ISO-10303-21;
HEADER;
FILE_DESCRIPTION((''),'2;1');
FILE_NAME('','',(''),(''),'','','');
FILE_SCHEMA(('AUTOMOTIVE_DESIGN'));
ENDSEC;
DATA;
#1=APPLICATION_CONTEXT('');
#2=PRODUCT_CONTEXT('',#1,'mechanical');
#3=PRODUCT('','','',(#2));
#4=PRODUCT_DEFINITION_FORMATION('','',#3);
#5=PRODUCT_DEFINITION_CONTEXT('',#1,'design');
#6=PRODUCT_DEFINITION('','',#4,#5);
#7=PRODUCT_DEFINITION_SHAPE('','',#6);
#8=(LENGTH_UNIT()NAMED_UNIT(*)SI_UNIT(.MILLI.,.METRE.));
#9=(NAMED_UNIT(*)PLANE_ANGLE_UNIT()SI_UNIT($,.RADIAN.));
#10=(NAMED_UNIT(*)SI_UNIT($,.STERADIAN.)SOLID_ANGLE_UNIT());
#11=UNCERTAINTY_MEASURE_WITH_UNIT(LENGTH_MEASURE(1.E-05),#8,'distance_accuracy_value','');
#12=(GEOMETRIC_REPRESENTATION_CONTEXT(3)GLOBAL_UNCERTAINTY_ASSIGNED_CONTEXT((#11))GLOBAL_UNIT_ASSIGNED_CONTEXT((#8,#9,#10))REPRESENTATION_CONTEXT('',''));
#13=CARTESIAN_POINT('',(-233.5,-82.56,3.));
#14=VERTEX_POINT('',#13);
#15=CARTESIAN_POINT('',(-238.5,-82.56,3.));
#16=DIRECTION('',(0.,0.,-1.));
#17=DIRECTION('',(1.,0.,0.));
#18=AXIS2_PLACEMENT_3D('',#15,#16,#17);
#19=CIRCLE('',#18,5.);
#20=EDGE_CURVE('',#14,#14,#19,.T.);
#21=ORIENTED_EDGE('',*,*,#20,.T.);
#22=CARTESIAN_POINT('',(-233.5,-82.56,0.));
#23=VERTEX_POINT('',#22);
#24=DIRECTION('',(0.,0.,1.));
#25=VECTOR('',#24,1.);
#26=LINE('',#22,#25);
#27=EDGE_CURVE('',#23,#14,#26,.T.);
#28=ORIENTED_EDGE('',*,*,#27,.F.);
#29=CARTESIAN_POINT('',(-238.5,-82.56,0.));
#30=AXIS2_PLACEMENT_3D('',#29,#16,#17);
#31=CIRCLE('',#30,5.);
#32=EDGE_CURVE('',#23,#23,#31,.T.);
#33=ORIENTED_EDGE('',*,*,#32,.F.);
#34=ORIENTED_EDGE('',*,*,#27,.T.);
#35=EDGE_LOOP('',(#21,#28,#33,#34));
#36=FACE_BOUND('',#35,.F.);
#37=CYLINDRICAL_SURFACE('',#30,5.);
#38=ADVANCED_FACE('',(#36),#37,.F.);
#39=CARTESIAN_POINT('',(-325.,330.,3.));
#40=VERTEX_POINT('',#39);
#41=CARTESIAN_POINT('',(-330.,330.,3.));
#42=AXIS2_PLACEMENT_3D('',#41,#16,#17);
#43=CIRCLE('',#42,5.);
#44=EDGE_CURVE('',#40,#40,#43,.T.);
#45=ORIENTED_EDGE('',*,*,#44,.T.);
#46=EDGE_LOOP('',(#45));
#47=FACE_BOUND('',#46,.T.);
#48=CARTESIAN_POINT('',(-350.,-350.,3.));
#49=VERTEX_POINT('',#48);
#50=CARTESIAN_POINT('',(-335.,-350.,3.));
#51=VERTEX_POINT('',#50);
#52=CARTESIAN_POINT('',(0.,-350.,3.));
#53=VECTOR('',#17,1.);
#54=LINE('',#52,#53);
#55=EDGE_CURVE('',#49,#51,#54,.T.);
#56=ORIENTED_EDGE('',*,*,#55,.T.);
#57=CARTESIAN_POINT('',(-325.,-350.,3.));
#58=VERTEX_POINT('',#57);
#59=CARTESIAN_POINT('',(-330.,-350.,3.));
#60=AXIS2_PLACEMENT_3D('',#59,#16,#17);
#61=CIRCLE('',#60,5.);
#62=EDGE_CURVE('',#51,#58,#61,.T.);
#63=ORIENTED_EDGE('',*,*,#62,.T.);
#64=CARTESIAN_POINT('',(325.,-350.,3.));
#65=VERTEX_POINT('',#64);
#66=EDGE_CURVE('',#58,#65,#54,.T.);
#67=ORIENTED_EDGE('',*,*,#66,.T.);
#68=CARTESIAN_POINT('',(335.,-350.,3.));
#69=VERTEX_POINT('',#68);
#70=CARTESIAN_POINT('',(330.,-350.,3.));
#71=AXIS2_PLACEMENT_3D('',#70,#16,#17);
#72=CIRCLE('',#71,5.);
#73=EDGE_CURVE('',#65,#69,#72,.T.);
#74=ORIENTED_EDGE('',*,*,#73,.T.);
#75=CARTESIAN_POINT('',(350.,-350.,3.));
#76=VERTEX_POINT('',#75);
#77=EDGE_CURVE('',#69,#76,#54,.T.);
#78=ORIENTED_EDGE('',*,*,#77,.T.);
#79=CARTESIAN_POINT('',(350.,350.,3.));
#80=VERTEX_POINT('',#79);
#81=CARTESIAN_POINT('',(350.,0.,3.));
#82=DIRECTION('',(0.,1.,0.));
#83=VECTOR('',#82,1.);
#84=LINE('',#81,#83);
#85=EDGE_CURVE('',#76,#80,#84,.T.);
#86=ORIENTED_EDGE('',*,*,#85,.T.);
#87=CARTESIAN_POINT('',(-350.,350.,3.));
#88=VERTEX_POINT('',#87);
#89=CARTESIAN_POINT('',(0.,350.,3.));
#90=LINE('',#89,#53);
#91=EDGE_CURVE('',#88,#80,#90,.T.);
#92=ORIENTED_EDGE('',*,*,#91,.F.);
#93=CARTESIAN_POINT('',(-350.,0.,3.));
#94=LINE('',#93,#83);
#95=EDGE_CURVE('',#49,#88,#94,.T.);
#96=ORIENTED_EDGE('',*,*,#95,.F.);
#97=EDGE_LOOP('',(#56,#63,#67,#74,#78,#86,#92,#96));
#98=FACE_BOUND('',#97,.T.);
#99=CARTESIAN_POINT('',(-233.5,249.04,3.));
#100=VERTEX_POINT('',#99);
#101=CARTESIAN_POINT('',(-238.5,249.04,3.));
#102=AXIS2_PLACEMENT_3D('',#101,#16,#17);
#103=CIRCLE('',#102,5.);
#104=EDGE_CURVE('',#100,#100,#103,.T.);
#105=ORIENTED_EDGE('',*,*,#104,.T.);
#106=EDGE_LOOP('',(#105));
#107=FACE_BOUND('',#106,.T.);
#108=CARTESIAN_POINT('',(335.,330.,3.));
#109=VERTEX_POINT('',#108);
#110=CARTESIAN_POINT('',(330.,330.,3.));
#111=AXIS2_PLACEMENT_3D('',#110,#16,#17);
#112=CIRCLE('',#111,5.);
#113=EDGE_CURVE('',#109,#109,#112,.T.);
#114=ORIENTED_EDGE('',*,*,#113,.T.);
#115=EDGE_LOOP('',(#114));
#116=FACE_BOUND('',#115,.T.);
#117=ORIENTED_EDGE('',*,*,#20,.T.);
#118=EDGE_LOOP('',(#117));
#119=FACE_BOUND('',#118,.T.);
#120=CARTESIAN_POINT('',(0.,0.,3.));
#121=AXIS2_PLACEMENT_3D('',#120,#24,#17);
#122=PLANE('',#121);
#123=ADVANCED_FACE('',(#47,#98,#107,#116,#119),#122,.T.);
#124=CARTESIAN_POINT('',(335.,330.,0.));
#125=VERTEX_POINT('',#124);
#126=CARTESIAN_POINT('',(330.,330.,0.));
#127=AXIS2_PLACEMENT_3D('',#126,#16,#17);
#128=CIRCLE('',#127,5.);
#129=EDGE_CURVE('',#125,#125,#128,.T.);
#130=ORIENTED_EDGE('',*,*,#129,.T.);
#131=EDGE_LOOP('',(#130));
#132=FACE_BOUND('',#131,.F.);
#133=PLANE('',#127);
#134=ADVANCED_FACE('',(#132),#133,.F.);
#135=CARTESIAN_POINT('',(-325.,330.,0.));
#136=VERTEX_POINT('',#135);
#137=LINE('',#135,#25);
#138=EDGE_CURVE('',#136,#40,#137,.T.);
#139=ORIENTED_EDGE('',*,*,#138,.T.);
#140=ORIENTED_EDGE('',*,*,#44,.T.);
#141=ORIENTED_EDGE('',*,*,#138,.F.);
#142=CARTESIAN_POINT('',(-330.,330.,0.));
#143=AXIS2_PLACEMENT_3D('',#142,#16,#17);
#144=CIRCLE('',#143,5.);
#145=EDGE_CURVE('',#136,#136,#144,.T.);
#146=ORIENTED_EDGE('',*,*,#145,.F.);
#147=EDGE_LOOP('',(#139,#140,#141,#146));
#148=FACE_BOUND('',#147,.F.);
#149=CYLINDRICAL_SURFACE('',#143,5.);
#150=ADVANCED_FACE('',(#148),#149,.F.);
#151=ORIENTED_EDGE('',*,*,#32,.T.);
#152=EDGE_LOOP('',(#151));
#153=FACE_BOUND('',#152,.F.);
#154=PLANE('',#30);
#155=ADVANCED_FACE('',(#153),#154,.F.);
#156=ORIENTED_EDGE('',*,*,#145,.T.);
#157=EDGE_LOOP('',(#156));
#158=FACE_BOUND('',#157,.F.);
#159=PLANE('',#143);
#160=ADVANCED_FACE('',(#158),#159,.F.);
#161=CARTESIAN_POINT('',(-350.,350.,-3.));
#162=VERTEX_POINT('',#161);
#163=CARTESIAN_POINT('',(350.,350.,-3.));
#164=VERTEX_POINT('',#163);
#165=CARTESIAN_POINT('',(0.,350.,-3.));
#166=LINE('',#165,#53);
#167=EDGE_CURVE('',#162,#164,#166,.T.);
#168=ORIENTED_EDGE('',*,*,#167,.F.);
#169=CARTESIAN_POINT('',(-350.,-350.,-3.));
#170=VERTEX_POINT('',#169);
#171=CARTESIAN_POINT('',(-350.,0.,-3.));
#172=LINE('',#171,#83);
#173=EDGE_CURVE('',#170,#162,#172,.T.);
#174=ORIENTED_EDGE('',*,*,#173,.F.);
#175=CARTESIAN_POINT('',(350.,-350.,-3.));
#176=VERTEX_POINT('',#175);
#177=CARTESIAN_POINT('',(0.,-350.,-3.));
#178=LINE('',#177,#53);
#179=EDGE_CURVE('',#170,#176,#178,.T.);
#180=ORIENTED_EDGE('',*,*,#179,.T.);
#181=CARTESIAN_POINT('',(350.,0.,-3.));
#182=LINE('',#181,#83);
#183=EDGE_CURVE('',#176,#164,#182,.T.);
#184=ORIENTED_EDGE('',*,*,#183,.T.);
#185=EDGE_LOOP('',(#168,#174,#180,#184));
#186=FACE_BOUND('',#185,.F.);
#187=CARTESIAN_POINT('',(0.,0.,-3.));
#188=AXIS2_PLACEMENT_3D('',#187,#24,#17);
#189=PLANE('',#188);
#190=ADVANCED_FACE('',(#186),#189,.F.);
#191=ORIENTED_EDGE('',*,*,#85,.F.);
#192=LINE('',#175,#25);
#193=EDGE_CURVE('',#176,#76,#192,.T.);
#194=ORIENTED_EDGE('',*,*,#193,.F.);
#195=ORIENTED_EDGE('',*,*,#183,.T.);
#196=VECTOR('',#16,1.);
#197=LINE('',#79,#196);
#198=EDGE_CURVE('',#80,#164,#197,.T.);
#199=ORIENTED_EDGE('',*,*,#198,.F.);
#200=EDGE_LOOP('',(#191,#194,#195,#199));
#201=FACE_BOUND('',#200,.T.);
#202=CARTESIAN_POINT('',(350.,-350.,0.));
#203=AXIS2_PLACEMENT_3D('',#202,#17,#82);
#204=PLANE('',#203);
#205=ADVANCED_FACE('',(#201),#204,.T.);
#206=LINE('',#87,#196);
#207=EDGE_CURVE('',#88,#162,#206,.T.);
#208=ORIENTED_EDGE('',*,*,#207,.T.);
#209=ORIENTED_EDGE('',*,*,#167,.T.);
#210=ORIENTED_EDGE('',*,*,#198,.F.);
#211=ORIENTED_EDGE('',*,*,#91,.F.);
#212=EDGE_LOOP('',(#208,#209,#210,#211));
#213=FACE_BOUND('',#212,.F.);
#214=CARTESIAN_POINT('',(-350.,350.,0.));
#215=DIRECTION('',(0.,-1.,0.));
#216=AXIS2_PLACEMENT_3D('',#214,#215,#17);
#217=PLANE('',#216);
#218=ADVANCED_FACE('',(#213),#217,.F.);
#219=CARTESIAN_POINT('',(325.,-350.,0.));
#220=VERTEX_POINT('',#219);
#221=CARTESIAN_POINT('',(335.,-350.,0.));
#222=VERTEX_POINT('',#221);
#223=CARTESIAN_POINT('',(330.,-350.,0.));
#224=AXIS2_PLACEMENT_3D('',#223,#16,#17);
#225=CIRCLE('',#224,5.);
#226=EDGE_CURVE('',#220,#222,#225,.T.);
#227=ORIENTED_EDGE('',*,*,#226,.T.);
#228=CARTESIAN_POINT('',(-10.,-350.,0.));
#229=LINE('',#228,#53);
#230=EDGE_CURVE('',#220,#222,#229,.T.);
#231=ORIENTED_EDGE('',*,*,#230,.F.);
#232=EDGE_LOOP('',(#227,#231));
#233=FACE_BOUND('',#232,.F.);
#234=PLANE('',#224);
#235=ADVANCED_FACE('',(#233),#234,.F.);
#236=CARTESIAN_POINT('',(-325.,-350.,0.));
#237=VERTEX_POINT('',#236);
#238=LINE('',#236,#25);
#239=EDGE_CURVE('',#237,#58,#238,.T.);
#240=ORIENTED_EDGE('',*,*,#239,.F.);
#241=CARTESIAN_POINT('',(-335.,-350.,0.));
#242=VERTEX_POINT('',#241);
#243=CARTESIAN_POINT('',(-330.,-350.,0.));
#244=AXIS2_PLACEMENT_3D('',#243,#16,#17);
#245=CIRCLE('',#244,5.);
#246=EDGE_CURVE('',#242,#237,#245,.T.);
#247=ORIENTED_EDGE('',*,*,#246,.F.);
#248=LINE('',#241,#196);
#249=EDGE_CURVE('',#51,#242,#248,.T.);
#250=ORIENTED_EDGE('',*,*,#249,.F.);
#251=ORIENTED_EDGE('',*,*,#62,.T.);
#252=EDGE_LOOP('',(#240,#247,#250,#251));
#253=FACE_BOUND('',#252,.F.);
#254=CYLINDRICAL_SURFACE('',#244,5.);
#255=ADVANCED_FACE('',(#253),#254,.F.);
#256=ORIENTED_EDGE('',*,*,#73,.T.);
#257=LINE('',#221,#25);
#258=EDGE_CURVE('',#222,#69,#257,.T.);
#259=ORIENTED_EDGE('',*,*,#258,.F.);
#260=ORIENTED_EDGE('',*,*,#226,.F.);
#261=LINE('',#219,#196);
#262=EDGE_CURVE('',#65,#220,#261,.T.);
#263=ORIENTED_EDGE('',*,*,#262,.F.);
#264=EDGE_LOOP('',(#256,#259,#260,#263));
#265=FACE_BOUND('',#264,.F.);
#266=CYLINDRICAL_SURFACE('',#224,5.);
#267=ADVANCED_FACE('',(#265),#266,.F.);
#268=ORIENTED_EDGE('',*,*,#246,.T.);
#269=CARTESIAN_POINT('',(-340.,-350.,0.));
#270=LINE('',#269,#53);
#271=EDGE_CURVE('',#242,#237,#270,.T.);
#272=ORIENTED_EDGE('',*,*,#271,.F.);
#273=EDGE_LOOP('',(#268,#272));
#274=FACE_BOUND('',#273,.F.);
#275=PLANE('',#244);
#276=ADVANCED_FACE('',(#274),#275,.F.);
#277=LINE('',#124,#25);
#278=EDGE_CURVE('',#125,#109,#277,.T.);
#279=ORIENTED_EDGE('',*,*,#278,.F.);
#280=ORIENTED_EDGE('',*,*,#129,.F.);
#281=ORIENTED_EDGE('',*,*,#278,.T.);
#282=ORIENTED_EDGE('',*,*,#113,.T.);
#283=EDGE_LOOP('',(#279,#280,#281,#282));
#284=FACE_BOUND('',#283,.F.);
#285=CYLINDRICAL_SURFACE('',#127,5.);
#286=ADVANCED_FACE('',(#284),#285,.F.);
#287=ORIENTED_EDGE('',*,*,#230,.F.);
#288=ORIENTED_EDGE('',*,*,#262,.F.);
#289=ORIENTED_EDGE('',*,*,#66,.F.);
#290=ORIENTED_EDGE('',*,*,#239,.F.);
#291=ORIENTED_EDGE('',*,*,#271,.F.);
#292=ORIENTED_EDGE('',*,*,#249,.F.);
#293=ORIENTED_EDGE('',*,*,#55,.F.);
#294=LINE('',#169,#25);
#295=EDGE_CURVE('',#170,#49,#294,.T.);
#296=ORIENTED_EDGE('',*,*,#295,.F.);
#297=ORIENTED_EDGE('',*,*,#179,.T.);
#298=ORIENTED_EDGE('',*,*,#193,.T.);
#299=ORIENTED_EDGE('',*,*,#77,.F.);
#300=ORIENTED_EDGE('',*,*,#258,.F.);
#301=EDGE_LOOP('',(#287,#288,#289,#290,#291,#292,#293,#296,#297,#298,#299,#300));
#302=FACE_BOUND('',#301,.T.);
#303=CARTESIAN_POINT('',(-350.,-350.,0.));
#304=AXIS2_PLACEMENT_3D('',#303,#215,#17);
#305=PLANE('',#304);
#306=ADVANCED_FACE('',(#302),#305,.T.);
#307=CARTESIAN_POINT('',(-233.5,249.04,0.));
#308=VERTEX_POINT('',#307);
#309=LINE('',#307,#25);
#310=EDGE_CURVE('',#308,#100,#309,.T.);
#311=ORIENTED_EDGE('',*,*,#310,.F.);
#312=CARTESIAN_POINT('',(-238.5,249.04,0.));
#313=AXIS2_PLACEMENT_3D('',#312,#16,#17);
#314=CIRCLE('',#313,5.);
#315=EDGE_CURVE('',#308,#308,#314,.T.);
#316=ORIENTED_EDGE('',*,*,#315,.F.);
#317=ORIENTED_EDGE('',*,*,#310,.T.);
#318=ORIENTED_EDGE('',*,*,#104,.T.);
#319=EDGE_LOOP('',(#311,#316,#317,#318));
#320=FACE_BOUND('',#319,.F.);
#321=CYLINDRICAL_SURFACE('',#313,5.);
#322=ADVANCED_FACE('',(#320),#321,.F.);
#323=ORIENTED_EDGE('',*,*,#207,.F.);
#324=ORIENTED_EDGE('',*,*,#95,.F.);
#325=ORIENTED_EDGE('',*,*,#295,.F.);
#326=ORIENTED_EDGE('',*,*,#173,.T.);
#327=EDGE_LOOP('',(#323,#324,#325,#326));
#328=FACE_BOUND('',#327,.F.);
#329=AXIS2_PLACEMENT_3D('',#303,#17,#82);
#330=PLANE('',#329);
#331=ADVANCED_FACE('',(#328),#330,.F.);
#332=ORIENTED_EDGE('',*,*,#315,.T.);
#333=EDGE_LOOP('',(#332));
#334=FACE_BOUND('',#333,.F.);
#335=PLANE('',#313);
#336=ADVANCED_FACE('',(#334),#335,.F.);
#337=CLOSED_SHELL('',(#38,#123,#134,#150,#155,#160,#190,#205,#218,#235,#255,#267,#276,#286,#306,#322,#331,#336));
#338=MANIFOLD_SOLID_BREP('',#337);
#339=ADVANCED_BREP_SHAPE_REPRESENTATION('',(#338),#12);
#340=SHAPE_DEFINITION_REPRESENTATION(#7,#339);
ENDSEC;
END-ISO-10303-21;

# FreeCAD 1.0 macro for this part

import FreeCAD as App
import Part
import Sketcher
Q = App.Units.Quantity


def add_polygon(sketch, points):
    """Adds a closed chain of lines whose ends are joined by coincident constraints."""
    first, n = sketch.GeometryCount, len(points)
    for a, b in zip(points, points[1:] + points[:1]):
        sketch.addGeometry(Part.LineSegment(App.Vector(*a, 0), App.Vector(*b, 0)), False)
    for i in range(n):
        sketch.addConstraint(Sketcher.Constraint("Coincident", first + i, 2, first + (i + 1) % n, 1))

doc = App.newDocument("Part")
body = doc.addObject("PartDesign::Body", "Body")

# Sketch on XY plane
sketch1 = body.newObject("Sketcher::SketchObject", "Sketch")
sketch1.AttachmentSupport = (doc.getObject("XY_Plane"), [""])
sketch1.MapMode = "FlatFace"
add_polygon(sketch1, [(-350, 350), (-350, -350), (350, -350), (350, 350)])  # lines 0-3
sketch1.addConstraint(Sketcher.Constraint("Vertical", 0))
sketch1.addConstraint(Sketcher.Constraint("Horizontal", 1))
sketch1.addConstraint(Sketcher.Constraint("Vertical", 2))
sketch1.addConstraint(Sketcher.Constraint("Horizontal", 3))
sketch1.addConstraint(Sketcher.Constraint("Symmetric", 0, 2, 2, 2, -1, 1))
sketch1.addConstraint(Sketcher.Constraint("Equal", 3, 0))
sketch1.addConstraint(Sketcher.Constraint("DistanceX", 1, 1, 1, 2, Q("700 mm")))
pad1 = body.newObject("PartDesign::Pad", "Pad")
pad1.Profile = sketch1
pad1.Length = 6
pad1.Midplane = True

# Sketch on XY plane
sketch2 = body.newObject("Sketcher::SketchObject", "Sketch001")
sketch2.AttachmentSupport = (doc.getObject("XY_Plane"), [""])
sketch2.MapMode = "FlatFace"
sketch2.addGeometry(Part.Circle(App.Vector(-238.5, -82.56, 0), App.Vector(0, 0, 1), 5), False)
sketch2.addGeometry(Part.Circle(App.Vector(-330, 330, 0), App.Vector(0, 0, 1), 5), False)
sketch2.addGeometry(Part.Circle(App.Vector(330, 330, 0), App.Vector(0, 0, 1), 5), False)
sketch2.addGeometry(Part.Circle(App.Vector(330, -350, 0), App.Vector(0, 0, 1), 5), False)
sketch2.addGeometry(Part.Circle(App.Vector(-330, -350, 0), App.Vector(0, 0, 1), 5), False)
sketch2.addGeometry(Part.Circle(App.Vector(-238.5, 249.04, 0), App.Vector(0, 0, 1), 5), False)
sketch2.addConstraint(Sketcher.Constraint("Equal", 0, 1))
sketch2.addConstraint(Sketcher.Constraint("Equal", 1, 2))
sketch2.addConstraint(Sketcher.Constraint("Equal", 2, 3))
sketch2.addConstraint(Sketcher.Constraint("Equal", 3, 4))
sketch2.addConstraint(Sketcher.Constraint("Equal", 4, 5))
sketch2.addConstraint(Sketcher.Constraint("Symmetric", 1, 3, 2, 3, -2))
sketch2.addConstraint(Sketcher.Constraint("Symmetric", 3, 3, 4, 3, -2))
sketch2.addConstraint(Sketcher.Constraint("Vertical", 2, 3, 3, 3))
sketch2.addConstraint(Sketcher.Constraint("Vertical", 0, 3, 5, 3))
sketch2.addConstraint(Sketcher.Constraint("Diameter", 0, Q("10 mm")))
sketch2.addConstraint(Sketcher.Constraint("DistanceX", 1, 3, -1, 1, Q("330 mm")))
sketch2.addConstraint(Sketcher.Constraint("DistanceY", -1, 1, 1, 3, Q("330 mm")))
sketch2.addConstraint(Sketcher.Constraint("DistanceY", 3, 3, -1, 1, Q("350 mm")))
sketch2.addConstraint(Sketcher.Constraint("DistanceX", 0, 3, -1, 1, Q("238.5 mm")))
sketch2.addConstraint(Sketcher.Constraint("DistanceY", 0, 3, 5, 3, Q("331.6 mm")))
sketch2.addConstraint(Sketcher.Constraint("DistanceY", 0, 3, -1, 1, Q("82.56 mm")))
pocket1 = body.newObject("PartDesign::Pocket", "Pocket")
pocket1.Profile = sketch2
pocket1.Type = "ThroughAll"
pocket1.Reversed = True

doc.recompute()
